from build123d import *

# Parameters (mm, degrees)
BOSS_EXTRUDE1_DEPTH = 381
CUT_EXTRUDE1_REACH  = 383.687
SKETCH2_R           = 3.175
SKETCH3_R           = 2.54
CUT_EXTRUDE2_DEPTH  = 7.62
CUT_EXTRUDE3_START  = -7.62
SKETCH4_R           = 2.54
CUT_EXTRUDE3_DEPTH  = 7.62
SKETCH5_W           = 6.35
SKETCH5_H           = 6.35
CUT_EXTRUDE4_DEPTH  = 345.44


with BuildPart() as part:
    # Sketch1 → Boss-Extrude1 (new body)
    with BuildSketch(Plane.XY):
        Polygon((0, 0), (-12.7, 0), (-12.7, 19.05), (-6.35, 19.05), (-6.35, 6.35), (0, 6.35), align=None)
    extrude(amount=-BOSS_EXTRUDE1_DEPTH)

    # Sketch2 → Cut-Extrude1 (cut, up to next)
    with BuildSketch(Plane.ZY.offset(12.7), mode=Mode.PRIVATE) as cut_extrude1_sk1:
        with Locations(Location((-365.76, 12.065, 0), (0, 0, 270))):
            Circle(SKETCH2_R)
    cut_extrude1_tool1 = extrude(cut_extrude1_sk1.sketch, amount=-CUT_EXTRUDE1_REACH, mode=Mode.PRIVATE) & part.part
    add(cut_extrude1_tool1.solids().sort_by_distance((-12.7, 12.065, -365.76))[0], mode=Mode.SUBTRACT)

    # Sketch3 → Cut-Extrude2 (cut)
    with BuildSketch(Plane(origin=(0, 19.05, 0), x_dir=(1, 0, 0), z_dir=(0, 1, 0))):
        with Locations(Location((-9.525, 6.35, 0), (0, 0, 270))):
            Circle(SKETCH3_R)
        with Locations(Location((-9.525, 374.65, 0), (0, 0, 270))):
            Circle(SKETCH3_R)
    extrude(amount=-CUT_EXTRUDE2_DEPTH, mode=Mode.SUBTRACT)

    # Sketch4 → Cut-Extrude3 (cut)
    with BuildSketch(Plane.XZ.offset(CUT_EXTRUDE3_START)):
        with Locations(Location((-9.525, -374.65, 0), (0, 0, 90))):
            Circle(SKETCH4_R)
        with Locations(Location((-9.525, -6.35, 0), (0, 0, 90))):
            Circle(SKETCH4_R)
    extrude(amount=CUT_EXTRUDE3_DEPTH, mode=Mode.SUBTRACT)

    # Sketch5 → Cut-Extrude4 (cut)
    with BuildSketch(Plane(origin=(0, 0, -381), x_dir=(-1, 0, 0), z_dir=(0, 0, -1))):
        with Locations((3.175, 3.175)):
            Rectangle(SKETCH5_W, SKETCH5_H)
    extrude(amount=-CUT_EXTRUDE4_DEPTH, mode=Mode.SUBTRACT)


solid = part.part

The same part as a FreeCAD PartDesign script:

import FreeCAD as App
import Part
import Sketcher
from FreeCAD import Vector
Q = App.Units.Quantity


def add_polygon(sketch, points):
    """Adds a closed chain of lines whose ends are joined by coincident constraints."""
    first, n = sketch.GeometryCount, len(points)
    for a, b in zip(points, points[1:] + points[:1]):
        sketch.addGeometry(Part.LineSegment(App.Vector(*a, 0), App.Vector(*b, 0)), False)
    for i in range(n):
        sketch.addConstraint(Sketcher.Constraint("Coincident", first + i, 2, first + (i + 1) % n, 1))

doc = App.newDocument("Part")
body = doc.addObject("PartDesign::Body", "Body")

# Sketch on XY plane
sketch1 = body.newObject("Sketcher::SketchObject", "Sketch")
sketch1.AttachmentSupport = (doc.getObject("XY_Plane"), [""])
sketch1.MapMode = "FlatFace"
add_polygon(sketch1, [(-13, 0), (0, 0), (0, 6), (-6, 6), (-6, 19), (-13, 19)])  # lines 0-5
sketch1.addConstraint(Sketcher.Constraint("Horizontal", 0))
sketch1.addConstraint(Sketcher.Constraint("Vertical", 1))
sketch1.addConstraint(Sketcher.Constraint("Horizontal", 2))
sketch1.addConstraint(Sketcher.Constraint("Vertical", 3))
sketch1.addConstraint(Sketcher.Constraint("Horizontal", 4))
sketch1.addConstraint(Sketcher.Constraint("Vertical", 5))
sketch1.addConstraint(Sketcher.Constraint("Coincident", 0, 2, -1, 1))
sketch1.addConstraint(Sketcher.Constraint("Equal", 2, 4))
sketch1.addConstraint(Sketcher.Constraint("Equal", 4, 1))
sketch1.addConstraint(Sketcher.Constraint("Equal", 0, 3))
sketch1.addConstraint(Sketcher.Constraint("DistanceX", 0, 1, 0, 2, Q("0.5 in")))
pad1 = body.newObject("PartDesign::Pad", "Pad")
pad1.Profile = sketch1
pad1.Length = Q("15 in")
pad1.Reversed = True

# Sketch on YZ plane
sketch2 = body.newObject("Sketcher::SketchObject", "Sketch001")
sketch2.AttachmentSupport = (doc.getObject("YZ_Plane"), [""])
sketch2.MapMode = "FlatFace"
sketch2.AttachmentOffset = App.Placement(Vector(0, 0, -0.5 * 25.4), App.Rotation())
sketch2.addGeometry(Part.Circle(Vector(12.1, -365.8, 0), Vector(0, 0, 1), 3.2), False)
sketch2.addConstraint(Sketcher.Constraint("Diameter", 0, Q("0.25 in")))
sketch2.addConstraint(Sketcher.Constraint("DistanceY", 0, 3, -1, 1, Q("14.4 in")))
sketch2.addConstraint(Sketcher.Constraint("DistanceX", -1, 1, 0, 3, Q("0.475 in")))
pocket1 = body.newObject("PartDesign::Pocket", "Pocket")
pocket1.Profile = sketch2
pocket1.Type = "UpToFirst"
pocket1.Reversed = True

# Sketch on XZ plane
sketch3 = body.newObject("Sketcher::SketchObject", "Sketch002")
sketch3.AttachmentSupport = (doc.getObject("XZ_Plane"), [""])
sketch3.MapMode = "FlatFace"
sketch3.AttachmentOffset = App.Placement(Vector(0, 0, -0.75 * 25.4), App.Rotation())
sketch3.addGeometry(Part.Circle(Vector(-9.5, -6.3, 0), Vector(0, 0, 1), 2.5), False)
sketch3.addGeometry(Part.Circle(Vector(-9.5, -374.6, 0), Vector(0, 0, 1), 2.5), False)
sketch3.addConstraint(Sketcher.Constraint("Equal", 0, 1))
sketch3.addConstraint(Sketcher.Constraint("Vertical", 0, 3, 1, 3))
sketch3.addConstraint(Sketcher.Constraint("Diameter", 0, Q("0.2 in")))
sketch3.addConstraint(Sketcher.Constraint("DistanceY", 1, 3, 0, 3, Q("14.5 in")))
sketch3.addConstraint(Sketcher.Constraint("DistanceY", 0, 3, -1, 1, Q("0.25 in")))
sketch3.addConstraint(Sketcher.Constraint("DistanceX", 0, 3, -1, 1, Q("0.375 in")))
pocket2 = body.newObject("PartDesign::Pocket", "Pocket001")
pocket2.Profile = sketch3
pocket2.Length = Q("0.3 in")
pocket2.Reversed = True

# Sketch on XZ plane
sketch4 = body.newObject("Sketcher::SketchObject", "Sketch003")
sketch4.AttachmentSupport = (doc.getObject("XZ_Plane"), [""])
sketch4.MapMode = "FlatFace"
sketch4.AttachmentOffset = App.Placement(Vector(0, 0, -0.3 * 25.4), App.Rotation())
sketch4.addGeometry(Part.Circle(Vector(-9.5, -374.6, 0), Vector(0, 0, 1), 2.5), False)
sketch4.addGeometry(Part.Circle(Vector(-9.5, -6.3, 0), Vector(0, 0, 1), 2.5), False)
sketch4.addConstraint(Sketcher.Constraint("Equal", 0, 1))
sketch4.addConstraint(Sketcher.Constraint("Vertical", 0, 3, 1, 3))
sketch4.addConstraint(Sketcher.Constraint("Diameter", 0, Q("0.2 in")))
sketch4.addConstraint(Sketcher.Constraint("DistanceY", 0, 3, 1, 3, Q("14.5 in")))
sketch4.addConstraint(Sketcher.Constraint("DistanceY", 0, 3, -1, 1, Q("14.75 in")))
sketch4.addConstraint(Sketcher.Constraint("DistanceX", 0, 3, -1, 1, Q("0.375 in")))
pocket3 = body.newObject("PartDesign::Pocket", "Pocket002")
pocket3.Profile = sketch4
pocket3.Length = Q("0.3 in")
pocket3.Reversed = True

# Sketch on XY plane
sketch5 = body.newObject("Sketcher::SketchObject", "Sketch004")
sketch5.AttachmentSupport = (doc.getObject("XY_Plane"), [""])
sketch5.MapMode = "FlatFace"
sketch5.AttachmentOffset = App.Placement(Vector(0, 0, -15 * 25.4), App.Rotation())
add_polygon(sketch5, [(0, 6), (0, 0), (-6, 0), (-6, 6)])  # lines 0-3
sketch5.addConstraint(Sketcher.Constraint("Vertical", 0))
sketch5.addConstraint(Sketcher.Constraint("Horizontal", 1))
sketch5.addConstraint(Sketcher.Constraint("Vertical", 2))
sketch5.addConstraint(Sketcher.Constraint("Horizontal", 3))
sketch5.addConstraint(Sketcher.Constraint("Coincident", 0, 2, -1, 1))
sketch5.addConstraint(Sketcher.Constraint("Equal", 3, 0))
sketch5.addConstraint(Sketcher.Constraint("DistanceX", 1, 2, 1, 1, Q("0.25 in")))
pocket4 = body.newObject("PartDesign::Pocket", "Pocket003")
pocket4.Profile = sketch5
pocket4.Length = Q("13.6 in")
pocket4.Reversed = True

doc.recompute()
